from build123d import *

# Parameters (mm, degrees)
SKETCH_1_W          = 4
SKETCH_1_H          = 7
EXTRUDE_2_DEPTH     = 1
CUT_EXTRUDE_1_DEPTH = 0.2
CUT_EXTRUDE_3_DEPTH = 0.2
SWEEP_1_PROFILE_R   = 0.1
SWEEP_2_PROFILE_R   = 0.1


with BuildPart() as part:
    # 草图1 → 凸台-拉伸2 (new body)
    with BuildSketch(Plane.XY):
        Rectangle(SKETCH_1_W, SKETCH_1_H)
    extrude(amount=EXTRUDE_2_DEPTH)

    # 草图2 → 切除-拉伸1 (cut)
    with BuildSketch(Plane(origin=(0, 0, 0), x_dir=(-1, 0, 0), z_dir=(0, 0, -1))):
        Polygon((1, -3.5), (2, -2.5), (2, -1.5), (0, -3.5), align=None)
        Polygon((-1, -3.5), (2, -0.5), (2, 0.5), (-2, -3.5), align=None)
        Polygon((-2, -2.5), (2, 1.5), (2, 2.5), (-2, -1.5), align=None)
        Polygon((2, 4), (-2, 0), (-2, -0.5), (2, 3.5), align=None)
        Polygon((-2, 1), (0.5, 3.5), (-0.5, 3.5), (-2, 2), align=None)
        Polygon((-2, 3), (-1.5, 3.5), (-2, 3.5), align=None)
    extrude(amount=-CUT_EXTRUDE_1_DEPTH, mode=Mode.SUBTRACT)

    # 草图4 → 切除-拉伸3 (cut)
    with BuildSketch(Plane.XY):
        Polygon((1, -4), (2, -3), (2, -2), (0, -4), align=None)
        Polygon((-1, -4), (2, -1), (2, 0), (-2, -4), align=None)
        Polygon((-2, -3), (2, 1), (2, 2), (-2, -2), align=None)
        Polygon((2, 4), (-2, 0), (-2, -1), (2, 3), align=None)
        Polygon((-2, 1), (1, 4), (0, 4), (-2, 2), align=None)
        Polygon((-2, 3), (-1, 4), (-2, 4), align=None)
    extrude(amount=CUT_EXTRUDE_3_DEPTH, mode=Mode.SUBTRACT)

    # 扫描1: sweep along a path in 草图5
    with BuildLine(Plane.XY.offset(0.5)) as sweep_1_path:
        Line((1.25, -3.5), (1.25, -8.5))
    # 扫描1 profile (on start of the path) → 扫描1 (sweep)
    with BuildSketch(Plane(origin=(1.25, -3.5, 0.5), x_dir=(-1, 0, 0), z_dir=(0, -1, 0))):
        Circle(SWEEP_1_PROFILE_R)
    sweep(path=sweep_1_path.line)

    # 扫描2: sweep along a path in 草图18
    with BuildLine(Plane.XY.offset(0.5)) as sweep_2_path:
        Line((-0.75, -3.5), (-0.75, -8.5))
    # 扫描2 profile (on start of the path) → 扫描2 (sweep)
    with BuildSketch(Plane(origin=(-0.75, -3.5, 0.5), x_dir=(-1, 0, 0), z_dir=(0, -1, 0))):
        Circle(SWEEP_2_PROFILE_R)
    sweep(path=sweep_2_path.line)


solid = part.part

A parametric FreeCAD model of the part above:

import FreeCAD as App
import Part
import Sketcher
from FreeCAD import Vector

doc = App.newDocument("Part")
body = doc.addObject("PartDesign::Body", "Body")

# Sketch on XY plane
sketch1 = doc.addObject("Sketcher::SketchObject", "Sketch")
body.addObject(sketch1)
sketch1.AttachmentSupport = (doc.XY_Plane, [""])
sketch1.MapMode = "FlatFace"
sketch1.addGeometry(Part.LineSegment(Vector(-2, 3.5, 0), Vector(-2, -3.5, 0)), False)
sketch1.addGeometry(Part.LineSegment(Vector(-2, -3.5, 0), Vector(2, -3.5, 0)), False)
sketch1.addGeometry(Part.LineSegment(Vector(2, -3.5, 0), Vector(2, 3.5, 0)), False)
sketch1.addGeometry(Part.LineSegment(Vector(2, 3.5, 0), Vector(-2, 3.5, 0)), False)
sketch1.addConstraint(Sketcher.Constraint("Coincident", 0, 2, 1, 1))
sketch1.addConstraint(Sketcher.Constraint("Coincident", 1, 2, 2, 1))
sketch1.addConstraint(Sketcher.Constraint("Coincident", 2, 2, 3, 1))
sketch1.addConstraint(Sketcher.Constraint("Coincident", 3, 2, 0, 1))
sketch1.addConstraint(Sketcher.Constraint("Vertical", 0))
sketch1.addConstraint(Sketcher.Constraint("Horizontal", 1))
sketch1.addConstraint(Sketcher.Constraint("Vertical", 2))
sketch1.addConstraint(Sketcher.Constraint("Horizontal", 3))
sketch1.addConstraint(Sketcher.Constraint("Symmetric", 0, 2, 2, 2, -1, 1))
sketch1.addConstraint(Sketcher.Constraint("DistanceX", 1, 1, 1, 2, 4.0))
sketch1.addConstraint(Sketcher.Constraint("DistanceY", 0, 2, 0, 1, 7.0))
pad1 = doc.addObject("PartDesign::Pad", "Pad")
body.addObject(pad1)
pad1.Profile = sketch1
pad1.Length = 1

# Sketch on XY plane
sketch2 = doc.addObject("Sketcher::SketchObject", "Sketch001")
body.addObject(sketch2)
sketch2.AttachmentSupport = (doc.XY_Plane, [""])
sketch2.MapMode = "FlatFace"
sketch2.addGeometry(Part.LineSegment(Vector(-1, -3.5, 0), Vector(-2, -2.5, 0)), False)
sketch2.addGeometry(Part.LineSegment(Vector(-2, -2.5, 0), Vector(-2, -1.5, 0)), False)
sketch2.addGeometry(Part.LineSegment(Vector(-2, -1.5, 0), Vector(0, -3.5, 0)), False)
sketch2.addGeometry(Part.LineSegment(Vector(0, -3.5, 0), Vector(-1, -3.5, 0)), False)
sketch2.addGeometry(Part.LineSegment(Vector(1, -3.5, 0), Vector(-2, -0.5, 0)), False)
sketch2.addGeometry(Part.LineSegment(Vector(-2, -0.5, 0), Vector(-2, 0.5, 0)), False)
sketch2.addGeometry(Part.LineSegment(Vector(-2, 0.5, 0), Vector(2, -3.5, 0)), False)
sketch2.addGeometry(Part.LineSegment(Vector(2, -3.5, 0), Vector(1, -3.5, 0)), False)
sketch2.addGeometry(Part.LineSegment(Vector(2, -2.5, 0), Vector(-2, 1.5, 0)), False)
sketch2.addGeometry(Part.LineSegment(Vector(-2, 1.5, 0), Vector(-2, 2.5, 0)), False)
sketch2.addGeometry(Part.LineSegment(Vector(-2, 2.5, 0), Vector(2, -1.5, 0)), False)
sketch2.addGeometry(Part.LineSegment(Vector(2, -1.5, 0), Vector(2, -2.5, 0)), False)
sketch2.addGeometry(Part.LineSegment(Vector(-2, 4, 0), Vector(2, 0, 0)), False)
sketch2.addGeometry(Part.LineSegment(Vector(2, 0, 0), Vector(2, -0.5, 0)), False)
sketch2.addGeometry(Part.LineSegment(Vector(2, -0.5, 0), Vector(-2, 3.5, 0)), False)
sketch2.addGeometry(Part.LineSegment(Vector(-2, 3.5, 0), Vector(-2, 4, 0)), False)
sketch2.addGeometry(Part.LineSegment(Vector(2, 1, 0), Vector(-0.5, 3.5, 0)), False)
sketch2.addGeometry(Part.LineSegment(Vector(-0.5, 3.5, 0), Vector(0.5, 3.5, 0)), False)
sketch2.addGeometry(Part.LineSegment(Vector(0.5, 3.5, 0), Vector(2, 2, 0)), False)
sketch2.addGeometry(Part.LineSegment(Vector(2, 2, 0), Vector(2, 1, 0)), False)
sketch2.addGeometry(Part.LineSegment(Vector(2, 3, 0), Vector(1.5, 3.5, 0)), False)
sketch2.addGeometry(Part.LineSegment(Vector(1.5, 3.5, 0), Vector(2, 3.5, 0)), False)
sketch2.addGeometry(Part.LineSegment(Vector(2, 3.5, 0), Vector(2, 3, 0)), False)
sketch2.addConstraint(Sketcher.Constraint("Coincident", 0, 2, 1, 1))
sketch2.addConstraint(Sketcher.Constraint("Coincident", 1, 2, 2, 1))
sketch2.addConstraint(Sketcher.Constraint("Coincident", 2, 2, 3, 1))
sketch2.addConstraint(Sketcher.Constraint("Coincident", 3, 2, 0, 1))
sketch2.addConstraint(Sketcher.Constraint("Coincident", 4, 2, 5, 1))
sketch2.addConstraint(Sketcher.Constraint("Coincident", 5, 2, 6, 1))
sketch2.addConstraint(Sketcher.Constraint("Coincident", 6, 2, 7, 1))
sketch2.addConstraint(Sketcher.Constraint("Coincident", 7, 2, 4, 1))
sketch2.addConstraint(Sketcher.Constraint("Coincident", 8, 2, 9, 1))
sketch2.addConstraint(Sketcher.Constraint("Coincident", 9, 2, 10, 1))
sketch2.addConstraint(Sketcher.Constraint("Coincident", 10, 2, 11, 1))
sketch2.addConstraint(Sketcher.Constraint("Coincident", 11, 2, 8, 1))
sketch2.addConstraint(Sketcher.Constraint("Coincident", 12, 2, 13, 1))
sketch2.addConstraint(Sketcher.Constraint("Coincident", 13, 2, 14, 1))
sketch2.addConstraint(Sketcher.Constraint("Coincident", 14, 2, 15, 1))
sketch2.addConstraint(Sketcher.Constraint("Coincident", 15, 2, 12, 1))
sketch2.addConstraint(Sketcher.Constraint("Coincident", 16, 2, 17, 1))
sketch2.addConstraint(Sketcher.Constraint("Coincident", 17, 2, 18, 1))
sketch2.addConstraint(Sketcher.Constraint("Coincident", 18, 2, 19, 1))
sketch2.addConstraint(Sketcher.Constraint("Coincident", 19, 2, 16, 1))
sketch2.addConstraint(Sketcher.Constraint("Coincident", 20, 2, 21, 1))
sketch2.addConstraint(Sketcher.Constraint("Coincident", 21, 2, 22, 1))
sketch2.addConstraint(Sketcher.Constraint("Coincident", 22, 2, 20, 1))
sketch2.addConstraint(Sketcher.Constraint("Vertical", 1))
sketch2.addConstraint(Sketcher.Constraint("Horizontal", 3))
sketch2.addConstraint(Sketcher.Constraint("Vertical", 5))
sketch2.addConstraint(Sketcher.Constraint("Horizontal", 7))
sketch2.addConstraint(Sketcher.Constraint("Vertical", 9))
sketch2.addConstraint(Sketcher.Constraint("Vertical", 11))
sketch2.addConstraint(Sketcher.Constraint("Vertical", 13))
sketch2.addConstraint(Sketcher.Constraint("Vertical", 15))
sketch2.addConstraint(Sketcher.Constraint("Horizontal", 17))
sketch2.addConstraint(Sketcher.Constraint("Vertical", 19))
sketch2.addConstraint(Sketcher.Constraint("Horizontal", 21))
sketch2.addConstraint(Sketcher.Constraint("Vertical", 22))
sketch2.addConstraint(Sketcher.Constraint("Symmetric", 8, 2, 10, 2, -1, 1))
sketch2.addConstraint(Sketcher.Constraint("Symmetric", 5, 2, 13, 2, -1, 1))
sketch2.addConstraint(Sketcher.Constraint("Symmetric", 6, 2, 14, 2, -1, 1))
sketch2.addConstraint(Sketcher.Constraint("Symmetric", 3, 2, 7, 2, -2))
sketch2.addConstraint(Sketcher.Constraint("Symmetric", 1, 2, 10, 2, -2))
sketch2.addConstraint(Sketcher.Constraint("Symmetric", 14, 2, 21, 2, -2))
sketch2.addConstraint(Sketcher.Constraint("PointOnObject", 2, 2, -2))
sketch2.addConstraint(Sketcher.Constraint("PointOnObject", 12, 2, -1))
sketch2.addConstraint(Sketcher.Constraint("Parallel", 0, 2))
sketch2.addConstraint(Sketcher.Constraint("Parallel", 2, 4))
sketch2.addConstraint(Sketcher.Constraint("Parallel", 4, 6))
sketch2.addConstraint(Sketcher.Constraint("Parallel", 6, 8))
sketch2.addConstraint(Sketcher.Constraint("Parallel", 8, 10))
sketch2.addConstraint(Sketcher.Constraint("Parallel", 10, 12))
sketch2.addConstraint(Sketcher.Constraint("Parallel", 14, 16))
sketch2.addConstraint(Sketcher.Constraint("Parallel", 16, 18))
sketch2.addConstraint(Sketcher.Constraint("Parallel", 18, 20))
sketch2.addConstraint(Sketcher.Constraint("Horizontal", 0, 2, 11, 2))
sketch2.addConstraint(Sketcher.Constraint("Horizontal", 4, 2, 13, 2))
sketch2.addConstraint(Sketcher.Constraint("Horizontal", 14, 2, 16, 2))
sketch2.addConstraint(Sketcher.Constraint("Vertical", 1, 2, 4, 2))
sketch2.addConstraint(Sketcher.Constraint("Vertical", 6, 2, 10, 2))
sketch2.addConstraint(Sketcher.Constraint("Vertical", 13, 2, 18, 2))
sketch2.addConstraint(Sketcher.Constraint("Equal", 7, 17))
sketch2.addConstraint(Sketcher.Constraint("Equal", 17, 1))
sketch2.addConstraint(Sketcher.Constraint("Equal", 21, 13))
sketch2.addConstraint(Sketcher.Constraint("DistanceX", 3, 2, 3, 1, 1.0))
sketch2.addConstraint(Sketcher.Constraint("DistanceY", -1, 1, 18, 2, 2.0))
pocket1 = doc.addObject("PartDesign::Pocket", "Pocket")
body.addObject(pocket1)
pocket1.Profile = sketch2
pocket1.Length = 0.2
pocket1.Reversed = True

# Sketch on XY plane
sketch3 = doc.addObject("Sketcher::SketchObject", "Sketch002")
body.addObject(sketch3)
sketch3.AttachmentSupport = (doc.XY_Plane, [""])
sketch3.MapMode = "FlatFace"
sketch3.addGeometry(Part.LineSegment(Vector(1, -4, 0), Vector(2, -3, 0)), False)
sketch3.addGeometry(Part.LineSegment(Vector(2, -3, 0), Vector(2, -2, 0)), False)
sketch3.addGeometry(Part.LineSegment(Vector(2, -2, 0), Vector(0, -4, 0)), False)
sketch3.addGeometry(Part.LineSegment(Vector(0, -4, 0), Vector(1, -4, 0)), False)
sketch3.addGeometry(Part.LineSegment(Vector(-1, -4, 0), Vector(2, -1, 0)), False)
sketch3.addGeometry(Part.LineSegment(Vector(2, -1, 0), Vector(2, 0, 0)), False)
sketch3.addGeometry(Part.LineSegment(Vector(2, 0, 0), Vector(-2, -4, 0)), False)
sketch3.addGeometry(Part.LineSegment(Vector(-2, -4, 0), Vector(-1, -4, 0)), False)
sketch3.addGeometry(Part.LineSegment(Vector(-2, -3, 0), Vector(2, 1, 0)), False)
sketch3.addGeometry(Part.LineSegment(Vector(2, 1, 0), Vector(2, 2, 0)), False)
sketch3.addGeometry(Part.LineSegment(Vector(2, 2, 0), Vector(-2, -2, 0)), False)
sketch3.addGeometry(Part.LineSegment(Vector(-2, -2, 0), Vector(-2, -3, 0)), False)
sketch3.addGeometry(Part.LineSegment(Vector(2, 4, 0), Vector(-2, 0, 0)), False)
sketch3.addGeometry(Part.LineSegment(Vector(-2, 0, 0), Vector(-2, -1, 0)), False)
sketch3.addGeometry(Part.LineSegment(Vector(-2, -1, 0), Vector(2, 3, 0)), False)
sketch3.addGeometry(Part.LineSegment(Vector(2, 3, 0), Vector(2, 4, 0)), False)
sketch3.addGeometry(Part.LineSegment(Vector(-2, 1, 0), Vector(1, 4, 0)), False)
sketch3.addGeometry(Part.LineSegment(Vector(1, 4, 0), Vector(0, 4, 0)), False)
sketch3.addGeometry(Part.LineSegment(Vector(0, 4, 0), Vector(-2, 2, 0)), False)
sketch3.addGeometry(Part.LineSegment(Vector(-2, 2, 0), Vector(-2, 1, 0)), False)
sketch3.addGeometry(Part.LineSegment(Vector(-2, 3, 0), Vector(-1, 4, 0)), False)
sketch3.addGeometry(Part.LineSegment(Vector(-1, 4, 0), Vector(-2, 4, 0)), False)
sketch3.addGeometry(Part.LineSegment(Vector(-2, 4, 0), Vector(-2, 3, 0)), False)
sketch3.addConstraint(Sketcher.Constraint("Coincident", 0, 2, 1, 1))
sketch3.addConstraint(Sketcher.Constraint("Coincident", 1, 2, 2, 1))
sketch3.addConstraint(Sketcher.Constraint("Coincident", 2, 2, 3, 1))
sketch3.addConstraint(Sketcher.Constraint("Coincident", 3, 2, 0, 1))
sketch3.addConstraint(Sketcher.Constraint("Coincident", 4, 2, 5, 1))
sketch3.addConstraint(Sketcher.Constraint("Coincident", 5, 2, 6, 1))
sketch3.addConstraint(Sketcher.Constraint("Coincident", 6, 2, 7, 1))
sketch3.addConstraint(Sketcher.Constraint("Coincident", 7, 2, 4, 1))
sketch3.addConstraint(Sketcher.Constraint("Coincident", 8, 2, 9, 1))
sketch3.addConstraint(Sketcher.Constraint("Coincident", 9, 2, 10, 1))
sketch3.addConstraint(Sketcher.Constraint("Coincident", 10, 2, 11, 1))
sketch3.addConstraint(Sketcher.Constraint("Coincident", 11, 2, 8, 1))
sketch3.addConstraint(Sketcher.Constraint("Coincident", 12, 2, 13, 1))
sketch3.addConstraint(Sketcher.Constraint("Coincident", 13, 2, 14, 1))
sketch3.addConstraint(Sketcher.Constraint("Coincident", 14, 2, 15, 1))
sketch3.addConstraint(Sketcher.Constraint("Coincident", 15, 2, 12, 1))
sketch3.addConstraint(Sketcher.Constraint("Coincident", 16, 2, 17, 1))
sketch3.addConstraint(Sketcher.Constraint("Coincident", 17, 2, 18, 1))
sketch3.addConstraint(Sketcher.Constraint("Coincident", 18, 2, 19, 1))
sketch3.addConstraint(Sketcher.Constraint("Coincident", 19, 2, 16, 1))
sketch3.addConstraint(Sketcher.Constraint("Coincident", 20, 2, 21, 1))
sketch3.addConstraint(Sketcher.Constraint("Coincident", 21, 2, 22, 1))
sketch3.addConstraint(Sketcher.Constraint("Coincident", 22, 2, 20, 1))
sketch3.addConstraint(Sketcher.Constraint("Vertical", 1))
sketch3.addConstraint(Sketcher.Constraint("Horizontal", 3))
sketch3.addConstraint(Sketcher.Constraint("Vertical", 5))
sketch3.addConstraint(Sketcher.Constraint("Horizontal", 7))
sketch3.addConstraint(Sketcher.Constraint("Vertical", 9))
sketch3.addConstraint(Sketcher.Constraint("Vertical", 11))
sketch3.addConstraint(Sketcher.Constraint("Vertical", 13))
sketch3.addConstraint(Sketcher.Constraint("Vertical", 15))
sketch3.addConstraint(Sketcher.Constraint("Horizontal", 17))
sketch3.addConstraint(Sketcher.Constraint("Vertical", 19))
sketch3.addConstraint(Sketcher.Constraint("Horizontal", 21))
sketch3.addConstraint(Sketcher.Constraint("Vertical", 22))
sketch3.addConstraint(Sketcher.Constraint("Symmetric", 9, 2, 10, 2, -1, 1))
sketch3.addConstraint(Sketcher.Constraint("Symmetric", 5, 2, 12, 2, -1, 1))
sketch3.addConstraint(Sketcher.Constraint("Symmetric", 8, 2, 13, 2, -1, 1))
sketch3.addConstraint(Sketcher.Constraint("Symmetric", 11, 2, 14, 2, -1, 1))
sketch3.addConstraint(Sketcher.Constraint("Symmetric", 6, 2, 15, 2, -1, 1))
sketch3.addConstraint(Sketcher.Constraint("Symmetric", 7, 2, 16, 2, -1, 1))
sketch3.addConstraint(Sketcher.Constraint("Symmetric", 2, 2, 17, 2, -1, 1))
sketch3.addConstraint(Sketcher.Constraint("Symmetric", 1, 2, 18, 2, -1, 1))
sketch3.addConstraint(Sketcher.Constraint("Symmetric", 4, 2, 19, 2, -1, 1))
sketch3.addConstraint(Sketcher.Constraint("Symmetric", 3, 2, 20, 2, -1, 1))
sketch3.addConstraint(Sketcher.Constraint("Symmetric", 0, 2, 22, 2, -1, 1))
sketch3.addConstraint(Sketcher.Constraint("PointOnObject", 2, 2, -2))
sketch3.addConstraint(Sketcher.Constraint("PointOnObject", 5, 2, -1))
sketch3.addConstraint(Sketcher.Constraint("Parallel", 0, 2))
sketch3.addConstraint(Sketcher.Constraint("Parallel", 2, 4))
sketch3.addConstraint(Sketcher.Constraint("Parallel", 4, 6))
sketch3.addConstraint(Sketcher.Constraint("Parallel", 6, 8))
sketch3.addConstraint(Sketcher.Constraint("Parallel", 8, 10))
sketch3.addConstraint(Sketcher.Constraint("Horizontal", 0, 2, 11, 2))
sketch3.addConstraint(Sketcher.Constraint("Horizontal", 4, 2, 13, 2))
sketch3.addConstraint(Sketcher.Constraint("Equal", 3, 7))
sketch3.addConstraint(Sketcher.Constraint("Equal", 21, 1))
sketch3.addConstraint(Sketcher.Constraint("DistanceX", 3, 1, 3, 2, 1.0))
pocket2 = doc.addObject("PartDesign::Pocket", "Pocket001")
body.addObject(pocket2)
pocket2.Profile = sketch3
pocket2.Length = 0.2
pocket2.Reversed = True

# Sketch on XZ plane
sketch4 = doc.addObject("Sketcher::SketchObject", "Sketch003")
body.addObject(sketch4)
sketch4.AttachmentSupport = (doc.XZ_Plane, [""])
sketch4.MapMode = "FlatFace"
sketch4.AttachmentOffset = App.Placement(Vector(0, 0, 3.5), App.Rotation())
sketch4.addGeometry(Part.Circle(Vector(1.25, 0.5, 0), Vector(0, 0, 1), 0.1), False)
sketch4.addConstraint(Sketcher.Constraint("Diameter", 0, 0.2))
sketch4.addConstraint(Sketcher.Constraint("DistanceY", -1, 1, 0, 3, 0.5))
sketch4.addConstraint(Sketcher.Constraint("DistanceX", -1, 1, 0, 3, 1.25))

# Sketch on XY plane
sketch5 = doc.addObject("Sketcher::SketchObject", "Sketch004")
body.addObject(sketch5)
sketch5.AttachmentSupport = (doc.XY_Plane, [""])
sketch5.MapMode = "FlatFace"
sketch5.AttachmentOffset = App.Placement(Vector(0, 0, 0.5), App.Rotation())
sketch5.addGeometry(Part.LineSegment(Vector(1, -4, 0), Vector(1, -8, 0)), False)
sketch5.addConstraint(Sketcher.Constraint("Vertical", 0))
sketch5.addConstraint(Sketcher.Constraint("DistanceY", 0, 2, 0, 1, 5.0))
sketch5.addConstraint(Sketcher.Constraint("DistanceY", 0, 1, -1, 1, 3.5))
sketch5.addConstraint(Sketcher.Constraint("DistanceX", -1, 1, 0, 1, 1.25))
doc.recompute()

additivepipe = doc.addObject("PartDesign::AdditivePipe", "AdditivePipe")
body.addObject(additivepipe)
additivepipe.Profile = sketch4
additivepipe.Spine = (sketch5, ["Edge1"])

# Sketch on XZ plane
sketch6 = doc.addObject("Sketcher::SketchObject", "Sketch005")
body.addObject(sketch6)
sketch6.AttachmentSupport = (doc.XZ_Plane, [""])
sketch6.MapMode = "FlatFace"
sketch6.AttachmentOffset = App.Placement(Vector(0, 0, 3.5), App.Rotation())
sketch6.addGeometry(Part.Circle(Vector(-0.75, 0.5, 0), Vector(0, 0, 1), 0.1), False)
sketch6.addConstraint(Sketcher.Constraint("Diameter", 0, 0.2))
sketch6.addConstraint(Sketcher.Constraint("DistanceY", -1, 1, 0, 3, 0.5))
sketch6.addConstraint(Sketcher.Constraint("DistanceX", 0, 3, -1, 1, 0.75))

# Sketch on XY plane
sketch7 = doc.addObject("Sketcher::SketchObject", "Sketch006")
body.addObject(sketch7)
sketch7.AttachmentSupport = (doc.XY_Plane, [""])
sketch7.MapMode = "FlatFace"
sketch7.AttachmentOffset = App.Placement(Vector(0, 0, 0.5), App.Rotation())
sketch7.addGeometry(Part.LineSegment(Vector(-1, -4, 0), Vector(-1, -8, 0)), False)
sketch7.addConstraint(Sketcher.Constraint("Vertical", 0))
sketch7.addConstraint(Sketcher.Constraint("DistanceY", 0, 2, 0, 1, 5.0))
sketch7.addConstraint(Sketcher.Constraint("DistanceY", 0, 1, -1, 1, 3.5))
sketch7.addConstraint(Sketcher.Constraint("DistanceX", 0, 1, -1, 1, 0.75))
doc.recompute()

additivepipe2 = doc.addObject("PartDesign::AdditivePipe", "AdditivePipe001")
body.addObject(additivepipe2)
additivepipe2.Profile = sketch6
additivepipe2.Spine = (sketch7, ["Edge1"])

doc.recompute()
